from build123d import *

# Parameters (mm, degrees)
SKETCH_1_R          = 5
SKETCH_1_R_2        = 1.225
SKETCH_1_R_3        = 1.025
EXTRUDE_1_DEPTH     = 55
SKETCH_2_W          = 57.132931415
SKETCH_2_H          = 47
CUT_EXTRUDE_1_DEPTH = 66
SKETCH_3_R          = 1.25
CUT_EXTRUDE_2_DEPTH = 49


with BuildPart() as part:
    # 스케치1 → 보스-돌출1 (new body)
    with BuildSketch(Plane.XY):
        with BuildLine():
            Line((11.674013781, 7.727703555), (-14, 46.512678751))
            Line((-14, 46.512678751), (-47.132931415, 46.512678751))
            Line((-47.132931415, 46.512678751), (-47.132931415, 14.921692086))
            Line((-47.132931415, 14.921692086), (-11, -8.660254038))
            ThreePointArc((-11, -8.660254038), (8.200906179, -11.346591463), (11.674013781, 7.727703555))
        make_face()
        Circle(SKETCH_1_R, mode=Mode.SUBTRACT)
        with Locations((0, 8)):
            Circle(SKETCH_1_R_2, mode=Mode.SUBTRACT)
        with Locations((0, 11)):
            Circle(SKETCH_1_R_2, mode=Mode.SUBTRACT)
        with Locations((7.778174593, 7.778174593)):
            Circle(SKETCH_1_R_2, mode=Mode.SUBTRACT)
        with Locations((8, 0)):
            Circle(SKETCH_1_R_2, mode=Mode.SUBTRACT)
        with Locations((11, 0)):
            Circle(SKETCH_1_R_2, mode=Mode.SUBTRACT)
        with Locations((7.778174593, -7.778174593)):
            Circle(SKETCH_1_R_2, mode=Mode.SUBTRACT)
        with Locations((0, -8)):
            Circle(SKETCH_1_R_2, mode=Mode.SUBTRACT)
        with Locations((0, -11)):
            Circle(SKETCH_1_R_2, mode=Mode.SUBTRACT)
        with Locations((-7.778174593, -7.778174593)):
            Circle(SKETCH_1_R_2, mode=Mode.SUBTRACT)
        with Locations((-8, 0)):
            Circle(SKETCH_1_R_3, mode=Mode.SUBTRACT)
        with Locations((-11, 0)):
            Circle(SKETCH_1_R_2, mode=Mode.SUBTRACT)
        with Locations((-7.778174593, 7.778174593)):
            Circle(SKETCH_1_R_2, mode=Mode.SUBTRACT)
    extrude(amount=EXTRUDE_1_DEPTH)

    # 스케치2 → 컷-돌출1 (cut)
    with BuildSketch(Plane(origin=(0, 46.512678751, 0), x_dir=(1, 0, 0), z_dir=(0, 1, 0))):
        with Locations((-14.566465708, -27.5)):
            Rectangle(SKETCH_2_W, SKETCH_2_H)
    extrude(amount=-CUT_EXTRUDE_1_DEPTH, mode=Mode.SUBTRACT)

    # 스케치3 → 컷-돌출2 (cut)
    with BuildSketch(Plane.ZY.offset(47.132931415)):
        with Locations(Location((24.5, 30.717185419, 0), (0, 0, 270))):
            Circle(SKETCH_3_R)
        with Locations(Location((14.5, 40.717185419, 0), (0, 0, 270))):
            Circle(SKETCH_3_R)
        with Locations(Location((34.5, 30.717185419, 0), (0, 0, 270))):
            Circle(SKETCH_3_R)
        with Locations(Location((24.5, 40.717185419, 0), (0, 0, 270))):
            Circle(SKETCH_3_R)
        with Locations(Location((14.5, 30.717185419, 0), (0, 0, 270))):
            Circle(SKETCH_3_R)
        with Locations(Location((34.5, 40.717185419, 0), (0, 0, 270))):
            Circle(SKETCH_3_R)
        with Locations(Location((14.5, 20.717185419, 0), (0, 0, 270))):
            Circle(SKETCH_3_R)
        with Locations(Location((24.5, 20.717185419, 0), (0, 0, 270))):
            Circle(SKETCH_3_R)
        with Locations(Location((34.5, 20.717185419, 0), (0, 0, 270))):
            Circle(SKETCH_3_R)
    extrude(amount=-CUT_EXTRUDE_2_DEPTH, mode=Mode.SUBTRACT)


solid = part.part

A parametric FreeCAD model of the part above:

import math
import FreeCAD as App
import Part
import Sketcher

V = App.Vector
Q = App.Units.Quantity

doc = App.newDocument("Part")
body = doc.addObject("PartDesign::Body", "Body")

sketch1 = body.newObject("Sketcher::SketchObject", "Sketch")
sketch1.AttachmentSupport = (doc.getObject("XY_Plane"), [""])
sketch1.MapMode = "FlatFace"
sketch1.addGeometry([
    Part.LineSegment(V(11.674014, 7.727704, 0), V(-14, 46.512679, 0)),
    Part.LineSegment(V(-14, 46.512679, 0), V(-47.132931, 46.512679, 0)),
    Part.LineSegment(V(-47.132931, 46.512679, 0), V(-47.132931, 14.921692, 0)),
    Part.LineSegment(V(-47.132931, 14.921692, 0), V(-11, -8.660254, 0)),
    Part.ArcOfCircle(Part.Circle(V(0, 0, 0), V(0, 0, 1), 14), math.radians(-141.786789), math.radians(33.502875)),
    Part.Circle(V(-7.778175, -7.778175, 0), V(0, 0, 1), 1.225),
    Part.Circle(V(0, -11, 0), V(0, 0, 1), 1.225),
    Part.Circle(V(0, -8, 0), V(0, 0, 1), 1.225),
    Part.Circle(V(7.778175, -7.778175, 0), V(0, 0, 1), 1.225),
    Part.Circle(V(-11, 0, 0), V(0, 0, 1), 1.225),
    Part.Circle(V(-8, 0, 0), V(0, 0, 1), 1.025),
    Part.Circle(V(0, 0, 0), V(0, 0, 1), 5),
    Part.Circle(V(-7.778175, 7.778175, 0), V(0, 0, 1), 1.225),
    Part.Circle(V(0, 8, 0), V(0, 0, 1), 1.225),
    Part.Circle(V(0, 11, 0), V(0, 0, 1), 1.225),
    Part.Circle(V(8, 0, 0), V(0, 0, 1), 1.225),
    Part.Circle(V(11, 0, 0), V(0, 0, 1), 1.225),
    Part.Circle(V(7.778175, 7.778175, 0), V(0, 0, 1), 1.225),
], False)
sketch1.addConstraint([
    Sketcher.Constraint("Coincident", 0, 2, 1, 1),
    Sketcher.Constraint("Coincident", 1, 2, 2, 1),
    Sketcher.Constraint("Coincident", 2, 2, 3, 1),
    Sketcher.Constraint("Coincident", 3, 2, 4, 1),
    Sketcher.Constraint("Tangent", 4, 2, 0, 1),
    Sketcher.Constraint("Horizontal", 1),
    Sketcher.Constraint("Vertical", 2),
    Sketcher.Constraint("Coincident", 4, 3, -1, 1),
    Sketcher.Constraint("Coincident", 11, 3, -1, 1),
    Sketcher.Constraint("Equal", 5, 6),
    Sketcher.Constraint("Equal", 6, 7),
    Sketcher.Constraint("Equal", 7, 8),
    Sketcher.Constraint("Equal", 8, 9),
    Sketcher.Constraint("Equal", 9, 12),
    Sketcher.Constraint("Equal", 12, 13),
    Sketcher.Constraint("Equal", 13, 14),
    Sketcher.Constraint("Equal", 14, 15),
    Sketcher.Constraint("Equal", 15, 16),
    Sketcher.Constraint("Equal", 16, 17),
    Sketcher.Constraint("Symmetric", 8, 3, 12, 3, -1, 1),
    Sketcher.Constraint("Symmetric", 7, 3, 13, 3, -1, 1),
    Sketcher.Constraint("Symmetric", 6, 3, 14, 3, -1, 1),
    Sketcher.Constraint("Symmetric", 10, 3, 15, 3, -1, 1),
    Sketcher.Constraint("Symmetric", 9, 3, 16, 3, -1, 1),
    Sketcher.Constraint("Symmetric", 5, 3, 17, 3, -1, 1),
    Sketcher.Constraint("Symmetric", 5, 3, 8, 3, -2),
    Sketcher.Constraint("PointOnObject", 6, 3, -2),
    Sketcher.Constraint("PointOnObject", 7, 3, -2),
    Sketcher.Constraint("PointOnObject", 9, 3, -1),
    Sketcher.Constraint("PointOnObject", 10, 3, -1),
    Sketcher.Constraint("Vertical", 9, 3, 3, 2),
    Sketcher.Constraint("Diameter", 11, Q("10 mm")),
    Sketcher.Constraint("Radius", 4, Q("14 mm")),
    Sketcher.Constraint("Diameter", 5, Q("2.45 mm")),
    Sketcher.Constraint("Diameter", 10, Q("2.05 mm")),
    Sketcher.Constraint("DistanceY", 6, 3, -1, 1, Q("11 mm")),
    Sketcher.Constraint("DistanceY", 7, 3, -1, 1, Q("8 mm")),
    Sketcher.Constraint("DistanceX", 9, 3, -1, 1, Q("11 mm")),
    Sketcher.Constraint("DistanceX", 10, 3, -1, 1, Q("8 mm")),
    Sketcher.Constraint("DistanceX", 0, 2, -1, 1, Q("14 mm")),
    Sketcher.Constraint("DistanceX", 1, 2, 1, 1, Q("33.132931 mm")),
    Sketcher.Constraint("Distance", 0, Q("46.512679 mm")),
    Sketcher.Constraint("DistanceY", 2, 2, 2, 1, Q("31.590987 mm")),
    Sketcher.Constraint("DistanceX", 5, 3, 8, 3, Q("15.556349 mm")),
    Sketcher.Constraint("DistanceY", 5, 3, 12, 3, Q("15.556349 mm")),
])
pad1 = body.newObject("PartDesign::Pad", "Pad")
pad1.Profile = sketch1
pad1.Length = 55

sketch2 = body.newObject("Sketcher::SketchObject", "Sketch001")
sketch2.AttachmentSupport = (doc.getObject("XZ_Plane"), [""])
sketch2.MapMode = "FlatFace"
sketch2.AttachmentOffset = App.Placement(V(0, 0, -46.512679), App.Rotation())
sketch2.addGeometry([
    Part.LineSegment(V(-43.132931, 4, 0), V(-43.132931, 51, 0)),
    Part.LineSegment(V(-43.132931, 51, 0), V(14, 51, 0)),
    Part.LineSegment(V(14, 51, 0), V(14, 4, 0)),
    Part.LineSegment(V(14, 4, 0), V(-43.132931, 4, 0)),
], False)
sketch2.addConstraint([
    Sketcher.Constraint("Coincident", 0, 2, 1, 1),
    Sketcher.Constraint("Coincident", 1, 2, 2, 1),
    Sketcher.Constraint("Coincident", 2, 2, 3, 1),
    Sketcher.Constraint("Coincident", 3, 2, 0, 1),
    Sketcher.Constraint("Vertical", 0),
    Sketcher.Constraint("Horizontal", 1),
    Sketcher.Constraint("Vertical", 2),
    Sketcher.Constraint("Horizontal", 3),
    Sketcher.Constraint("DistanceY", 0, 1, 0, 2, Q("47 mm")),
    Sketcher.Constraint("DistanceY", -1, 1, 0, 2, Q("51 mm")),
    Sketcher.Constraint("DistanceX", -1, 1, 1, 2, Q("14 mm")),
    Sketcher.Constraint("DistanceX", 1, 1, 1, 2, Q("57.132931 mm")),
])
pocket1 = body.newObject("PartDesign::Pocket", "Pocket")
pocket1.Profile = sketch2
pocket1.Length = 66
pocket1.Reversed = True

sketch3 = body.newObject("Sketcher::SketchObject", "Sketch002")
sketch3.AttachmentSupport = (doc.getObject("YZ_Plane"), [""])
sketch3.MapMode = "FlatFace"
sketch3.AttachmentOffset = App.Placement(V(0, 0, -47.132931), App.Rotation())
sketch3.addGeometry([
    Part.Circle(V(30.717185, 24.5, 0), V(0, 0, 1), 1.25),
    Part.Circle(V(40.717185, 14.5, 0), V(0, 0, 1), 1.25),
    Part.Circle(V(30.717185, 34.5, 0), V(0, 0, 1), 1.25),
    Part.Circle(V(40.717185, 24.5, 0), V(0, 0, 1), 1.25),
    Part.Circle(V(30.717185, 14.5, 0), V(0, 0, 1), 1.25),
    Part.Circle(V(40.717185, 34.5, 0), V(0, 0, 1), 1.25),
    Part.Circle(V(20.717185, 14.5, 0), V(0, 0, 1), 1.25),
    Part.Circle(V(20.717185, 24.5, 0), V(0, 0, 1), 1.25),
    Part.Circle(V(20.717185, 34.5, 0), V(0, 0, 1), 1.25),
], False)
sketch3.addConstraint([
    Sketcher.Constraint("Equal", 0, 1),
    Sketcher.Constraint("Equal", 1, 2),
    Sketcher.Constraint("Equal", 2, 3),
    Sketcher.Constraint("Equal", 3, 4),
    Sketcher.Constraint("Equal", 4, 5),
    Sketcher.Constraint("Equal", 5, 6),
    Sketcher.Constraint("Equal", 6, 7),
    Sketcher.Constraint("Equal", 7, 8),
    Sketcher.Constraint("Horizontal", 0, 3, 3, 3),
    Sketcher.Constraint("Horizontal", 1, 3, 4, 3),
    Sketcher.Constraint("Horizontal", 2, 3, 5, 3),
    Sketcher.Constraint("Horizontal", 4, 3, 6, 3),
    Sketcher.Constraint("Horizontal", 3, 3, 7, 3),
    Sketcher.Constraint("Horizontal", 5, 3, 8, 3),
    Sketcher.Constraint("Vertical", 0, 3, 2, 3),
    Sketcher.Constraint("Vertical", 1, 3, 3, 3),
    Sketcher.Constraint("Vertical", 2, 3, 4, 3),
    Sketcher.Constraint("Vertical", 3, 3, 5, 3),
    Sketcher.Constraint("Vertical", 6, 3, 7, 3),
    Sketcher.Constraint("Vertical", 7, 3, 8, 3),
    Sketcher.Constraint("Diameter", 0, Q("2.5 mm")),
    Sketcher.Constraint("DistanceX", 0, 3, 1, 3, Q("10 mm")),
    Sketcher.Constraint("DistanceY", 1, 3, 0, 3, Q("10 mm")),
    Sketcher.Constraint("DistanceY", 0, 3, 2, 3, Q("10 mm")),
    Sketcher.Constraint("DistanceX", 6, 3, 4, 3, Q("10 mm")),
    Sketcher.Constraint("DistanceY", -1, 1, 0, 3, Q("24.5 mm")),
    Sketcher.Constraint("DistanceX", -1, 1, 0, 3, Q("30.717185 mm")),
])
pocket2 = body.newObject("PartDesign::Pocket", "Pocket001")
pocket2.Profile = sketch3
pocket2.Length = 49
pocket2.Reversed = True

doc.recompute()
